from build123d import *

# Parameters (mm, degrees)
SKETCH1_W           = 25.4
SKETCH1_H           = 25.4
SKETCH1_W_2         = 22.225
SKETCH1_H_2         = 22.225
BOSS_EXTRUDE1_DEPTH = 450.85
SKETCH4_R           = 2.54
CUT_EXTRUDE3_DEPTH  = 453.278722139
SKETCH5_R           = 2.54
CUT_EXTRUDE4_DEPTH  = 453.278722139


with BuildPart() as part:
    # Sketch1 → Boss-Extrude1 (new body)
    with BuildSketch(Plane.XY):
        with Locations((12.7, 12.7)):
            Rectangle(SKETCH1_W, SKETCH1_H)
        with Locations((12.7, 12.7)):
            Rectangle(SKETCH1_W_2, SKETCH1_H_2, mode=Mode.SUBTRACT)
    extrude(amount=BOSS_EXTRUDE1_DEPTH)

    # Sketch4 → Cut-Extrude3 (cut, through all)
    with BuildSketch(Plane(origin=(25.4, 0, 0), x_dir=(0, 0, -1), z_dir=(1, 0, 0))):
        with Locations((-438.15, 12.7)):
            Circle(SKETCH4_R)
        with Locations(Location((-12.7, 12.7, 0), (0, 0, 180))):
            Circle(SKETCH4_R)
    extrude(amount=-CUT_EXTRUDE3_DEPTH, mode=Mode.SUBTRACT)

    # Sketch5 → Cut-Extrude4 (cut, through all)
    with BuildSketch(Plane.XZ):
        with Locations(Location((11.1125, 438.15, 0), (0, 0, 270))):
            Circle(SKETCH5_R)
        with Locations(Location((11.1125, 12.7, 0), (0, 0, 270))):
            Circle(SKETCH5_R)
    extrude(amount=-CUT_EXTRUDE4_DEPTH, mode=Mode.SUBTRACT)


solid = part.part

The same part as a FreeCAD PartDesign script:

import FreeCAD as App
import Part
import Sketcher
from FreeCAD import Vector
Q = App.Units.Quantity


def add_polygon(sketch, points):
    """Adds a closed chain of lines whose ends are joined by coincident constraints."""
    first, n = sketch.GeometryCount, len(points)
    for a, b in zip(points, points[1:] + points[:1]):
        sketch.addGeometry(Part.LineSegment(App.Vector(*a, 0), App.Vector(*b, 0)), False)
    for i in range(n):
        sketch.addConstraint(Sketcher.Constraint("Coincident", first + i, 2, first + (i + 1) % n, 1))

doc = App.newDocument("Part")
body = doc.addObject("PartDesign::Body", "Body")

# Sketch on XY plane
sketch1 = body.newObject("Sketcher::SketchObject", "Sketch")
sketch1.AttachmentSupport = (doc.getObject("XY_Plane"), [""])
sketch1.MapMode = "FlatFace"
add_polygon(sketch1, [(0, 25), (0, 0), (25, 0), (25, 25)])  # lines 0-3
add_polygon(sketch1, [(24, 2), (2, 2), (2, 24), (24, 24)])  # lines 4-7
sketch1.addConstraint([
    Sketcher.Constraint("Vertical", 0),
    Sketcher.Constraint("Horizontal", 1),
    Sketcher.Constraint("Vertical", 2),
    Sketcher.Constraint("Horizontal", 3),
    Sketcher.Constraint("Horizontal", 4),
    Sketcher.Constraint("Vertical", 5),
    Sketcher.Constraint("Horizontal", 6),
    Sketcher.Constraint("Vertical", 7),
    Sketcher.Constraint("Coincident", 0, 2, -1, 1),
    Sketcher.Constraint("Equal", 3, 0),
    Sketcher.Constraint("Equal", 6, 5),
    Sketcher.Constraint("DistanceX", 1, 1, 1, 2, Q("1 in")),
    Sketcher.Constraint("DistanceX", 4, 2, 4, 1, Q("0.875 in")),
    Sketcher.Constraint("DistanceX", -1, 1, 4, 2, Q("0.0625 in")),
    Sketcher.Constraint("DistanceY", -1, 1, 4, 2, Q("0.0625 in")),
])
pad1 = body.newObject("PartDesign::Pad", "Pad")
pad1.Profile = sketch1
pad1.Length = Q("17.75 in")

# Sketch on YZ plane
sketch2 = body.newObject("Sketcher::SketchObject", "Sketch001")
sketch2.AttachmentSupport = (doc.getObject("YZ_Plane"), [""])
sketch2.MapMode = "FlatFace"
sketch2.AttachmentOffset = App.Placement(Vector(0, 0, 1 * 25.4), App.Rotation())
sketch2.addGeometry([
    Part.Circle(Vector(12.7, 438.1, 0), Vector(0, 0, 1), 2.5),
    Part.Circle(Vector(12.7, 12.7, 0), Vector(0, 0, 1), 2.5),
], False)
sketch2.addConstraint([
    Sketcher.Constraint("Equal", 0, 1),
    Sketcher.Constraint("Vertical", 0, 3, 1, 3),
    Sketcher.Constraint("Diameter", 0, Q("0.2 in")),
    Sketcher.Constraint("DistanceX", -1, 1, 0, 3, Q("0.5 in")),
    Sketcher.Constraint("DistanceY", -1, 1, 1, 3, Q("0.5 in")),
    Sketcher.Constraint("DistanceY", -1, 1, 0, 3, Q("17.25 in")),
])
pocket1 = body.newObject("PartDesign::Pocket", "Pocket")
pocket1.Profile = sketch2
pocket1.Type = "ThroughAll"

# Sketch on XZ plane
sketch3 = body.newObject("Sketcher::SketchObject", "Sketch002")
sketch3.AttachmentSupport = (doc.getObject("XZ_Plane"), [""])
sketch3.MapMode = "FlatFace"
sketch3.addGeometry([
    Part.Circle(Vector(11.1, 438.1, 0), Vector(0, 0, 1), 2.5),
    Part.Circle(Vector(11.1, 12.7, 0), Vector(0, 0, 1), 2.5),
], False)
sketch3.addConstraint([
    Sketcher.Constraint("Equal", 0, 1),
    Sketcher.Constraint("Vertical", 0, 3, 1, 3),
    Sketcher.Constraint("Diameter", 0, Q("0.2 in")),
    Sketcher.Constraint("DistanceY", -1, 1, 1, 3, Q("0.5 in")),
    Sketcher.Constraint("DistanceY", -1, 1, 0, 3, Q("17.25 in")),
    Sketcher.Constraint("DistanceX", -1, 1, 0, 3, Q("0.4375 in")),
])
pocket2 = body.newObject("PartDesign::Pocket", "Pocket001")
pocket2.Profile = sketch3
pocket2.Type = "ThroughAll"

doc.recompute()
